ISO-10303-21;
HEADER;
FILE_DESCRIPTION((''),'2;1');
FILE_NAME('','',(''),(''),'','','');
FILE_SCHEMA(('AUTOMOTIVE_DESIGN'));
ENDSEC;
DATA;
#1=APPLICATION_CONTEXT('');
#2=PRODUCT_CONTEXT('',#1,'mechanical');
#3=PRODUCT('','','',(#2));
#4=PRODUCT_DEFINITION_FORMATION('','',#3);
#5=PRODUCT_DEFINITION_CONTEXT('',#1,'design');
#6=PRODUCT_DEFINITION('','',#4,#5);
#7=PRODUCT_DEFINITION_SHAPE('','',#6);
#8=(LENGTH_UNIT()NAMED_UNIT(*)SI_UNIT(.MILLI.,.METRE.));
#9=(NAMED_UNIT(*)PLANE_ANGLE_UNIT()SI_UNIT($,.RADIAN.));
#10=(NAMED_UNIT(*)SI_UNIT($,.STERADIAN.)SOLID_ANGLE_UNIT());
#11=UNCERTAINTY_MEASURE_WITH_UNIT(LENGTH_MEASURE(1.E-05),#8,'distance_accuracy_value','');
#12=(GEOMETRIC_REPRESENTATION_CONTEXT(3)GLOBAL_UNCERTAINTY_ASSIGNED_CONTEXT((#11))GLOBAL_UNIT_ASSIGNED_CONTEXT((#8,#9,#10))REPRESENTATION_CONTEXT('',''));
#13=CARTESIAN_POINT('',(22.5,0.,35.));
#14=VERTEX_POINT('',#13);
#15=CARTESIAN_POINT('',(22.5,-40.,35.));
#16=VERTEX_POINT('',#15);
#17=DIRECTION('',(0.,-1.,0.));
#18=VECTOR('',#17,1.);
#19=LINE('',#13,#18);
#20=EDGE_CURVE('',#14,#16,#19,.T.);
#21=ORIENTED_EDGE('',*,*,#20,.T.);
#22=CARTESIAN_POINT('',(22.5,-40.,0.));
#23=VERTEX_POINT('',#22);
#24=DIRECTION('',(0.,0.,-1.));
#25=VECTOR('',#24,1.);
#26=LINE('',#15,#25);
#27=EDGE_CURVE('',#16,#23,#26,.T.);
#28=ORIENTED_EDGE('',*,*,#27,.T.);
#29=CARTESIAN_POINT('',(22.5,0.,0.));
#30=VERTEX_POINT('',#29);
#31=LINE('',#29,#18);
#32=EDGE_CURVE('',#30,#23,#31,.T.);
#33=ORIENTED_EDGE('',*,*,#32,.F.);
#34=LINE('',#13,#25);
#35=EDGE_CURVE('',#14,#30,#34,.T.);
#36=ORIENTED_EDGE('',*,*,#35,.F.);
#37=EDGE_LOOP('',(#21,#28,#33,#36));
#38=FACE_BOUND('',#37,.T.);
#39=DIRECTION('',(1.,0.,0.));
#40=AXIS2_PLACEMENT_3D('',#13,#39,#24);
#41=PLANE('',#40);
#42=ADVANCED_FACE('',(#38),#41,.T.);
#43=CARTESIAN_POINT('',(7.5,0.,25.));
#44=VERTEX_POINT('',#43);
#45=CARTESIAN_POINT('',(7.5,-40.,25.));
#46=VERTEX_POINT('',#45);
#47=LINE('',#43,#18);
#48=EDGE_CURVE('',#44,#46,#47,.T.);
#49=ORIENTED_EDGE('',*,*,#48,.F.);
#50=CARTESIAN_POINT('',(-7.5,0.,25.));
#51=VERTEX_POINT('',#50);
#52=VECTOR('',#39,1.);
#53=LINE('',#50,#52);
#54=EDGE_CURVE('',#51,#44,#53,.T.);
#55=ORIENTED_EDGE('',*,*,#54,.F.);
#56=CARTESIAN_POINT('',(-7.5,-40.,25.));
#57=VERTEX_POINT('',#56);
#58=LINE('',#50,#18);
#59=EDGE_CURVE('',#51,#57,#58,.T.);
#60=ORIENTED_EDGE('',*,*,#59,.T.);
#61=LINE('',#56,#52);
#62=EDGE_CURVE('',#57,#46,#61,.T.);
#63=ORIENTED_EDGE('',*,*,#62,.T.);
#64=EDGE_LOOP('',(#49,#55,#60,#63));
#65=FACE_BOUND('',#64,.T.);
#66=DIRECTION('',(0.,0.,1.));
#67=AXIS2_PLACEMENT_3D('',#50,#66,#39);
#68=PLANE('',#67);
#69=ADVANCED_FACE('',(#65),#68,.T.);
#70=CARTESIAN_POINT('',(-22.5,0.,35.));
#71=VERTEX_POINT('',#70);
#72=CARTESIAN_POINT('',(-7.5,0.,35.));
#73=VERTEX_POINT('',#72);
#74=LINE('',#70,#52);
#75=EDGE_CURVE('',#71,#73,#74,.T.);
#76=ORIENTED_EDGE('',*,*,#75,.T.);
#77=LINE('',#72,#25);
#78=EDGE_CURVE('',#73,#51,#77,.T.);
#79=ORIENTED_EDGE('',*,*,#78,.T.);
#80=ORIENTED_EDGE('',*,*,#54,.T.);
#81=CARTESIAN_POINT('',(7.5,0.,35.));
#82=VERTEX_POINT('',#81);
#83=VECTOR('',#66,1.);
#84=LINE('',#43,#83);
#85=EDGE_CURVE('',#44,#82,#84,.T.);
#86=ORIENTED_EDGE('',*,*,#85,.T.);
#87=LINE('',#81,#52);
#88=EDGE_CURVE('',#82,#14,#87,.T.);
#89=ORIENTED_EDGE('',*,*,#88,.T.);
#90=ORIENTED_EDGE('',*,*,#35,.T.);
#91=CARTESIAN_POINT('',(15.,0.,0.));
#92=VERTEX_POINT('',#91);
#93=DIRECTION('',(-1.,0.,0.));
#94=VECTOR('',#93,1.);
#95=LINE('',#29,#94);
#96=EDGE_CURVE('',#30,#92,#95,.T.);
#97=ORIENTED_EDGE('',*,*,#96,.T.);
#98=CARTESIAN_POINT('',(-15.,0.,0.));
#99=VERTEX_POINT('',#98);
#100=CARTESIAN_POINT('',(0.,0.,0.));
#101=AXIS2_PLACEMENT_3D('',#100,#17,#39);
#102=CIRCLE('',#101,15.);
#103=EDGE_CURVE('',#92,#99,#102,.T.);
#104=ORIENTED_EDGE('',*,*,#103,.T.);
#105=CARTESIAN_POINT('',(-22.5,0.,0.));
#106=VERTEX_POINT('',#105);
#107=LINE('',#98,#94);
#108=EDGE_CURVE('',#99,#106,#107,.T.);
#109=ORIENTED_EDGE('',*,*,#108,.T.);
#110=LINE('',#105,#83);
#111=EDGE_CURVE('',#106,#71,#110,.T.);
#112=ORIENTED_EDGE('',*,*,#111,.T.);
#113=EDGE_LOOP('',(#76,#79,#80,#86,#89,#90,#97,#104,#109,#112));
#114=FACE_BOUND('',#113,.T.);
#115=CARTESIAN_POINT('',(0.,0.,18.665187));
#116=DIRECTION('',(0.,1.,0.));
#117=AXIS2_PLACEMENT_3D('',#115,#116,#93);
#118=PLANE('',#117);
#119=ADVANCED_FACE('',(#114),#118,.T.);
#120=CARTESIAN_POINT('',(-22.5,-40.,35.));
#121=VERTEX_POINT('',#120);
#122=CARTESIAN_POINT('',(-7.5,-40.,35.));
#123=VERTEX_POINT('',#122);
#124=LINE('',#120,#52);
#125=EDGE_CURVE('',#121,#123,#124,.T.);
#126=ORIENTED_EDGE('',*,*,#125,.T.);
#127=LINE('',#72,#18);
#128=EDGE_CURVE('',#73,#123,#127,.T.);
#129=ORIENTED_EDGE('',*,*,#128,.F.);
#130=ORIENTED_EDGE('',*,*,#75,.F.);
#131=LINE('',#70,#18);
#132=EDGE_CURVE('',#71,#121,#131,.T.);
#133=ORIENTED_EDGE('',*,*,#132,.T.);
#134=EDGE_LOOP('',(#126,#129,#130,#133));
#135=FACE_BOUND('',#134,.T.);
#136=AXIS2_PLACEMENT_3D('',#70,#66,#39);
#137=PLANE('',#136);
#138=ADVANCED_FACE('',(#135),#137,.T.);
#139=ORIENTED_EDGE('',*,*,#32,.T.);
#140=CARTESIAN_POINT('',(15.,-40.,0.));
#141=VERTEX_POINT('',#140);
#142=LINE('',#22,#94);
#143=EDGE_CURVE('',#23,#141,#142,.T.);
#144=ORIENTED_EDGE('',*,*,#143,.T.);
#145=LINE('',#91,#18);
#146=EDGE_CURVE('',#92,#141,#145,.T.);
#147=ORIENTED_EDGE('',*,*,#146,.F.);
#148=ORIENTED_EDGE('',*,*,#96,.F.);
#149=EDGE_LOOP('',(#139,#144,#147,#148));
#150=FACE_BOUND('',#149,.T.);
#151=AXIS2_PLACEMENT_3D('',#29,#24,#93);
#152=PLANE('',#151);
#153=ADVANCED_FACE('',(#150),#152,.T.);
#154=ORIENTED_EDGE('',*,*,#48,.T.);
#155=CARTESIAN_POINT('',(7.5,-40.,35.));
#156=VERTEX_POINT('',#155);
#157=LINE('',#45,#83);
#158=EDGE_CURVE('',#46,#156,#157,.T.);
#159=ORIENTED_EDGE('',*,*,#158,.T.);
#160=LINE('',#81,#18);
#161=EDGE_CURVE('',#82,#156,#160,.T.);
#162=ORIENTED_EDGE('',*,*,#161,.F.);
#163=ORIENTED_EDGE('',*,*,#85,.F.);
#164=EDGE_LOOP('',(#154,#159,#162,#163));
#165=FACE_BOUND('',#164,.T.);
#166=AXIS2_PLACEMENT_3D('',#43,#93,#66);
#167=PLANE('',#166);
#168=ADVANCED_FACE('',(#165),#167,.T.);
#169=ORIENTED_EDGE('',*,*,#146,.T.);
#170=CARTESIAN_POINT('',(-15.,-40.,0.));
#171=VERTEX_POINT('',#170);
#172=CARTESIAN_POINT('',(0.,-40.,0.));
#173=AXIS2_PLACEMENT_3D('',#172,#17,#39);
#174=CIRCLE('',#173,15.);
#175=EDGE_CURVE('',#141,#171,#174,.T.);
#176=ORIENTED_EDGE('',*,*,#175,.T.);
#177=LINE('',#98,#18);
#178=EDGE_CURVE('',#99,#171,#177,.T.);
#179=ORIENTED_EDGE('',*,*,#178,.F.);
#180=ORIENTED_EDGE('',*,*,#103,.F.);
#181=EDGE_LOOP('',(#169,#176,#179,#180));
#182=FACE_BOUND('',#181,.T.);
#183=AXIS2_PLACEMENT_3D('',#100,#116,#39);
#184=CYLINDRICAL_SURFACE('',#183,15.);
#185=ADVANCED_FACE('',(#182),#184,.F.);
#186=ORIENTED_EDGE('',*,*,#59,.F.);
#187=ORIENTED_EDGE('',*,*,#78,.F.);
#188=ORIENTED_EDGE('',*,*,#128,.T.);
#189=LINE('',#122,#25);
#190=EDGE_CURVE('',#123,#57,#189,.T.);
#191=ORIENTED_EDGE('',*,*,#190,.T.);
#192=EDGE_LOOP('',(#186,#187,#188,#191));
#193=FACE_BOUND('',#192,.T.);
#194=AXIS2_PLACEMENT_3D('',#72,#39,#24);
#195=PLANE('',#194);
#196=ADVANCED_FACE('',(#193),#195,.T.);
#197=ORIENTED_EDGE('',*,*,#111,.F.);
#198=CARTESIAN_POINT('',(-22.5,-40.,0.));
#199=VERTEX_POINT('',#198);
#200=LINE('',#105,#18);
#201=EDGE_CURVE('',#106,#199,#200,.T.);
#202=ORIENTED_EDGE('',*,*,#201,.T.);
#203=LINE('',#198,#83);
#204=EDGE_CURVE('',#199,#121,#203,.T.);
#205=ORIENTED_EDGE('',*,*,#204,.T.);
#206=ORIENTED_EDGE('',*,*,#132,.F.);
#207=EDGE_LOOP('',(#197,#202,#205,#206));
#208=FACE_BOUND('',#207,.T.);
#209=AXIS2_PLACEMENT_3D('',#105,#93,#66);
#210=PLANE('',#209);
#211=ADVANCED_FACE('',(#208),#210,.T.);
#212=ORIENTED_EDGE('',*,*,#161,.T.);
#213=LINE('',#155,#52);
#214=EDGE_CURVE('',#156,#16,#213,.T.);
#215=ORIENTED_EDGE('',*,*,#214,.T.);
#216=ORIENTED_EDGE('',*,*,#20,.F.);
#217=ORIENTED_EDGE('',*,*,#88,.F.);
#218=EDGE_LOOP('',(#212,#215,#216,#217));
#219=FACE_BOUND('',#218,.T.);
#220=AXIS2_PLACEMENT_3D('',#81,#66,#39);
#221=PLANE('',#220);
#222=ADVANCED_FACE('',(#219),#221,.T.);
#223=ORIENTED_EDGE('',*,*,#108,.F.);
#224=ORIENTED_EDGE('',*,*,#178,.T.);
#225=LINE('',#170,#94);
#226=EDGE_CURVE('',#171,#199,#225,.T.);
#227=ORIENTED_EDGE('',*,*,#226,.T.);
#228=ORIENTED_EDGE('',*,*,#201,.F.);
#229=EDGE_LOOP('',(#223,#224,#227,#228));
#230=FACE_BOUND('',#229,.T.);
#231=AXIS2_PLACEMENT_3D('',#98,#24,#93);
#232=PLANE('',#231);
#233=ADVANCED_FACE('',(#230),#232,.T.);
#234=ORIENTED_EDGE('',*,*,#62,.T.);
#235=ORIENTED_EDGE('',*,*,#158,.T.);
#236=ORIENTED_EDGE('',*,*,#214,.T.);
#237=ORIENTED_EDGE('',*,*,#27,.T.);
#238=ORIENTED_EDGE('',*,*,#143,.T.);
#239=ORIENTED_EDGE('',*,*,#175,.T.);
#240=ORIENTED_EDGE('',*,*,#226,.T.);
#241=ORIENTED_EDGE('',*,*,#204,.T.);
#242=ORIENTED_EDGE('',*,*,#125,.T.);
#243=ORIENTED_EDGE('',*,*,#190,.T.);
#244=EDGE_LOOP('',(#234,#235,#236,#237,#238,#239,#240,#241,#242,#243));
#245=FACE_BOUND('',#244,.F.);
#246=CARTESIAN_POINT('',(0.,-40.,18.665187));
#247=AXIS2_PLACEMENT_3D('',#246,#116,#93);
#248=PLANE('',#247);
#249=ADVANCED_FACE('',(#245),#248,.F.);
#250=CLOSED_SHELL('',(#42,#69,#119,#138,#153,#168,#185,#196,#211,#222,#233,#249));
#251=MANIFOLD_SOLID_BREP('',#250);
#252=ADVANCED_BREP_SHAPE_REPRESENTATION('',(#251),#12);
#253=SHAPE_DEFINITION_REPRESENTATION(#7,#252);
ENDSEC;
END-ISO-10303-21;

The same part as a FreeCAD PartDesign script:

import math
import FreeCAD as App
import Part
import Sketcher

V = App.Vector

doc = App.newDocument("Part")
body = doc.addObject("PartDesign::Body", "Body")

sketch1 = body.newObject("Sketcher::SketchObject", "Sketch")
sketch1.AttachmentSupport = (doc.getObject("XZ_Plane"), [""])
sketch1.MapMode = "FlatFace"
sketch1.addGeometry([
    Part.LineSegment(V(-22.5, 35, 0), V(-22.5, 0, 0)),
    Part.LineSegment(V(-22.5, 0, 0), V(-15, 0, 0)),
    Part.ArcOfCircle(Part.Circle(V(0, 0, 0), V(0, 0, 1), 15), math.radians(0), math.radians(180)),
    Part.LineSegment(V(15, 0, 0), V(22.5, 0, 0)),
    Part.LineSegment(V(22.5, 0, 0), V(22.5, 35, 0)),
    Part.LineSegment(V(22.5, 35, 0), V(7.5, 35, 0)),
    Part.LineSegment(V(7.5, 35, 0), V(7.5, 25, 0)),
    Part.LineSegment(V(7.5, 25, 0), V(-7.5, 25, 0)),
    Part.LineSegment(V(-7.5, 25, 0), V(-7.5, 35, 0)),
    Part.LineSegment(V(-7.5, 35, 0), V(-22.5, 35, 0)),
], False)
sketch1.addConstraint([
    Sketcher.Constraint("Coincident", 0, 2, 1, 1),
    Sketcher.Constraint("Coincident", 1, 2, 2, 2),
    Sketcher.Constraint("Coincident", 2, 1, 3, 1),
    Sketcher.Constraint("Coincident", 3, 2, 4, 1),
    Sketcher.Constraint("Coincident", 4, 2, 5, 1),
    Sketcher.Constraint("Coincident", 5, 2, 6, 1),
    Sketcher.Constraint("Coincident", 6, 2, 7, 1),
    Sketcher.Constraint("Coincident", 7, 2, 8, 1),
    Sketcher.Constraint("Coincident", 8, 2, 9, 1),
    Sketcher.Constraint("Coincident", 9, 2, 0, 1),
    Sketcher.Constraint("Vertical", 0),
    Sketcher.Constraint("Horizontal", 1),
    Sketcher.Constraint("Horizontal", 3),
    Sketcher.Constraint("Vertical", 4),
    Sketcher.Constraint("Horizontal", 5),
    Sketcher.Constraint("Vertical", 6),
    Sketcher.Constraint("Horizontal", 7),
    Sketcher.Constraint("Vertical", 8),
    Sketcher.Constraint("Horizontal", 9),
    Sketcher.Constraint("Coincident", 2, 3, -1, 1),
    Sketcher.Constraint("Symmetric", 0, 2, 3, 2, -1, 1),
    Sketcher.Constraint("Symmetric", 5, 2, 8, 2, -2),
    Sketcher.Constraint("PointOnObject", 0, 2, -1),
    Sketcher.Constraint("Equal", 5, 7),
    Sketcher.Constraint("Radius", 2, 15.0),
    Sketcher.Constraint("DistanceX", 5, 2, 5, 1, 15.0),
    Sketcher.Constraint("DistanceY", 0, 2, 0, 1, 35.0),
    Sketcher.Constraint("DistanceY", 6, 2, 6, 1, 10.0),
])
pad1 = body.newObject("PartDesign::Pad", "Pad")
pad1.Profile = sketch1
pad1.Length = 40

doc.recompute()
